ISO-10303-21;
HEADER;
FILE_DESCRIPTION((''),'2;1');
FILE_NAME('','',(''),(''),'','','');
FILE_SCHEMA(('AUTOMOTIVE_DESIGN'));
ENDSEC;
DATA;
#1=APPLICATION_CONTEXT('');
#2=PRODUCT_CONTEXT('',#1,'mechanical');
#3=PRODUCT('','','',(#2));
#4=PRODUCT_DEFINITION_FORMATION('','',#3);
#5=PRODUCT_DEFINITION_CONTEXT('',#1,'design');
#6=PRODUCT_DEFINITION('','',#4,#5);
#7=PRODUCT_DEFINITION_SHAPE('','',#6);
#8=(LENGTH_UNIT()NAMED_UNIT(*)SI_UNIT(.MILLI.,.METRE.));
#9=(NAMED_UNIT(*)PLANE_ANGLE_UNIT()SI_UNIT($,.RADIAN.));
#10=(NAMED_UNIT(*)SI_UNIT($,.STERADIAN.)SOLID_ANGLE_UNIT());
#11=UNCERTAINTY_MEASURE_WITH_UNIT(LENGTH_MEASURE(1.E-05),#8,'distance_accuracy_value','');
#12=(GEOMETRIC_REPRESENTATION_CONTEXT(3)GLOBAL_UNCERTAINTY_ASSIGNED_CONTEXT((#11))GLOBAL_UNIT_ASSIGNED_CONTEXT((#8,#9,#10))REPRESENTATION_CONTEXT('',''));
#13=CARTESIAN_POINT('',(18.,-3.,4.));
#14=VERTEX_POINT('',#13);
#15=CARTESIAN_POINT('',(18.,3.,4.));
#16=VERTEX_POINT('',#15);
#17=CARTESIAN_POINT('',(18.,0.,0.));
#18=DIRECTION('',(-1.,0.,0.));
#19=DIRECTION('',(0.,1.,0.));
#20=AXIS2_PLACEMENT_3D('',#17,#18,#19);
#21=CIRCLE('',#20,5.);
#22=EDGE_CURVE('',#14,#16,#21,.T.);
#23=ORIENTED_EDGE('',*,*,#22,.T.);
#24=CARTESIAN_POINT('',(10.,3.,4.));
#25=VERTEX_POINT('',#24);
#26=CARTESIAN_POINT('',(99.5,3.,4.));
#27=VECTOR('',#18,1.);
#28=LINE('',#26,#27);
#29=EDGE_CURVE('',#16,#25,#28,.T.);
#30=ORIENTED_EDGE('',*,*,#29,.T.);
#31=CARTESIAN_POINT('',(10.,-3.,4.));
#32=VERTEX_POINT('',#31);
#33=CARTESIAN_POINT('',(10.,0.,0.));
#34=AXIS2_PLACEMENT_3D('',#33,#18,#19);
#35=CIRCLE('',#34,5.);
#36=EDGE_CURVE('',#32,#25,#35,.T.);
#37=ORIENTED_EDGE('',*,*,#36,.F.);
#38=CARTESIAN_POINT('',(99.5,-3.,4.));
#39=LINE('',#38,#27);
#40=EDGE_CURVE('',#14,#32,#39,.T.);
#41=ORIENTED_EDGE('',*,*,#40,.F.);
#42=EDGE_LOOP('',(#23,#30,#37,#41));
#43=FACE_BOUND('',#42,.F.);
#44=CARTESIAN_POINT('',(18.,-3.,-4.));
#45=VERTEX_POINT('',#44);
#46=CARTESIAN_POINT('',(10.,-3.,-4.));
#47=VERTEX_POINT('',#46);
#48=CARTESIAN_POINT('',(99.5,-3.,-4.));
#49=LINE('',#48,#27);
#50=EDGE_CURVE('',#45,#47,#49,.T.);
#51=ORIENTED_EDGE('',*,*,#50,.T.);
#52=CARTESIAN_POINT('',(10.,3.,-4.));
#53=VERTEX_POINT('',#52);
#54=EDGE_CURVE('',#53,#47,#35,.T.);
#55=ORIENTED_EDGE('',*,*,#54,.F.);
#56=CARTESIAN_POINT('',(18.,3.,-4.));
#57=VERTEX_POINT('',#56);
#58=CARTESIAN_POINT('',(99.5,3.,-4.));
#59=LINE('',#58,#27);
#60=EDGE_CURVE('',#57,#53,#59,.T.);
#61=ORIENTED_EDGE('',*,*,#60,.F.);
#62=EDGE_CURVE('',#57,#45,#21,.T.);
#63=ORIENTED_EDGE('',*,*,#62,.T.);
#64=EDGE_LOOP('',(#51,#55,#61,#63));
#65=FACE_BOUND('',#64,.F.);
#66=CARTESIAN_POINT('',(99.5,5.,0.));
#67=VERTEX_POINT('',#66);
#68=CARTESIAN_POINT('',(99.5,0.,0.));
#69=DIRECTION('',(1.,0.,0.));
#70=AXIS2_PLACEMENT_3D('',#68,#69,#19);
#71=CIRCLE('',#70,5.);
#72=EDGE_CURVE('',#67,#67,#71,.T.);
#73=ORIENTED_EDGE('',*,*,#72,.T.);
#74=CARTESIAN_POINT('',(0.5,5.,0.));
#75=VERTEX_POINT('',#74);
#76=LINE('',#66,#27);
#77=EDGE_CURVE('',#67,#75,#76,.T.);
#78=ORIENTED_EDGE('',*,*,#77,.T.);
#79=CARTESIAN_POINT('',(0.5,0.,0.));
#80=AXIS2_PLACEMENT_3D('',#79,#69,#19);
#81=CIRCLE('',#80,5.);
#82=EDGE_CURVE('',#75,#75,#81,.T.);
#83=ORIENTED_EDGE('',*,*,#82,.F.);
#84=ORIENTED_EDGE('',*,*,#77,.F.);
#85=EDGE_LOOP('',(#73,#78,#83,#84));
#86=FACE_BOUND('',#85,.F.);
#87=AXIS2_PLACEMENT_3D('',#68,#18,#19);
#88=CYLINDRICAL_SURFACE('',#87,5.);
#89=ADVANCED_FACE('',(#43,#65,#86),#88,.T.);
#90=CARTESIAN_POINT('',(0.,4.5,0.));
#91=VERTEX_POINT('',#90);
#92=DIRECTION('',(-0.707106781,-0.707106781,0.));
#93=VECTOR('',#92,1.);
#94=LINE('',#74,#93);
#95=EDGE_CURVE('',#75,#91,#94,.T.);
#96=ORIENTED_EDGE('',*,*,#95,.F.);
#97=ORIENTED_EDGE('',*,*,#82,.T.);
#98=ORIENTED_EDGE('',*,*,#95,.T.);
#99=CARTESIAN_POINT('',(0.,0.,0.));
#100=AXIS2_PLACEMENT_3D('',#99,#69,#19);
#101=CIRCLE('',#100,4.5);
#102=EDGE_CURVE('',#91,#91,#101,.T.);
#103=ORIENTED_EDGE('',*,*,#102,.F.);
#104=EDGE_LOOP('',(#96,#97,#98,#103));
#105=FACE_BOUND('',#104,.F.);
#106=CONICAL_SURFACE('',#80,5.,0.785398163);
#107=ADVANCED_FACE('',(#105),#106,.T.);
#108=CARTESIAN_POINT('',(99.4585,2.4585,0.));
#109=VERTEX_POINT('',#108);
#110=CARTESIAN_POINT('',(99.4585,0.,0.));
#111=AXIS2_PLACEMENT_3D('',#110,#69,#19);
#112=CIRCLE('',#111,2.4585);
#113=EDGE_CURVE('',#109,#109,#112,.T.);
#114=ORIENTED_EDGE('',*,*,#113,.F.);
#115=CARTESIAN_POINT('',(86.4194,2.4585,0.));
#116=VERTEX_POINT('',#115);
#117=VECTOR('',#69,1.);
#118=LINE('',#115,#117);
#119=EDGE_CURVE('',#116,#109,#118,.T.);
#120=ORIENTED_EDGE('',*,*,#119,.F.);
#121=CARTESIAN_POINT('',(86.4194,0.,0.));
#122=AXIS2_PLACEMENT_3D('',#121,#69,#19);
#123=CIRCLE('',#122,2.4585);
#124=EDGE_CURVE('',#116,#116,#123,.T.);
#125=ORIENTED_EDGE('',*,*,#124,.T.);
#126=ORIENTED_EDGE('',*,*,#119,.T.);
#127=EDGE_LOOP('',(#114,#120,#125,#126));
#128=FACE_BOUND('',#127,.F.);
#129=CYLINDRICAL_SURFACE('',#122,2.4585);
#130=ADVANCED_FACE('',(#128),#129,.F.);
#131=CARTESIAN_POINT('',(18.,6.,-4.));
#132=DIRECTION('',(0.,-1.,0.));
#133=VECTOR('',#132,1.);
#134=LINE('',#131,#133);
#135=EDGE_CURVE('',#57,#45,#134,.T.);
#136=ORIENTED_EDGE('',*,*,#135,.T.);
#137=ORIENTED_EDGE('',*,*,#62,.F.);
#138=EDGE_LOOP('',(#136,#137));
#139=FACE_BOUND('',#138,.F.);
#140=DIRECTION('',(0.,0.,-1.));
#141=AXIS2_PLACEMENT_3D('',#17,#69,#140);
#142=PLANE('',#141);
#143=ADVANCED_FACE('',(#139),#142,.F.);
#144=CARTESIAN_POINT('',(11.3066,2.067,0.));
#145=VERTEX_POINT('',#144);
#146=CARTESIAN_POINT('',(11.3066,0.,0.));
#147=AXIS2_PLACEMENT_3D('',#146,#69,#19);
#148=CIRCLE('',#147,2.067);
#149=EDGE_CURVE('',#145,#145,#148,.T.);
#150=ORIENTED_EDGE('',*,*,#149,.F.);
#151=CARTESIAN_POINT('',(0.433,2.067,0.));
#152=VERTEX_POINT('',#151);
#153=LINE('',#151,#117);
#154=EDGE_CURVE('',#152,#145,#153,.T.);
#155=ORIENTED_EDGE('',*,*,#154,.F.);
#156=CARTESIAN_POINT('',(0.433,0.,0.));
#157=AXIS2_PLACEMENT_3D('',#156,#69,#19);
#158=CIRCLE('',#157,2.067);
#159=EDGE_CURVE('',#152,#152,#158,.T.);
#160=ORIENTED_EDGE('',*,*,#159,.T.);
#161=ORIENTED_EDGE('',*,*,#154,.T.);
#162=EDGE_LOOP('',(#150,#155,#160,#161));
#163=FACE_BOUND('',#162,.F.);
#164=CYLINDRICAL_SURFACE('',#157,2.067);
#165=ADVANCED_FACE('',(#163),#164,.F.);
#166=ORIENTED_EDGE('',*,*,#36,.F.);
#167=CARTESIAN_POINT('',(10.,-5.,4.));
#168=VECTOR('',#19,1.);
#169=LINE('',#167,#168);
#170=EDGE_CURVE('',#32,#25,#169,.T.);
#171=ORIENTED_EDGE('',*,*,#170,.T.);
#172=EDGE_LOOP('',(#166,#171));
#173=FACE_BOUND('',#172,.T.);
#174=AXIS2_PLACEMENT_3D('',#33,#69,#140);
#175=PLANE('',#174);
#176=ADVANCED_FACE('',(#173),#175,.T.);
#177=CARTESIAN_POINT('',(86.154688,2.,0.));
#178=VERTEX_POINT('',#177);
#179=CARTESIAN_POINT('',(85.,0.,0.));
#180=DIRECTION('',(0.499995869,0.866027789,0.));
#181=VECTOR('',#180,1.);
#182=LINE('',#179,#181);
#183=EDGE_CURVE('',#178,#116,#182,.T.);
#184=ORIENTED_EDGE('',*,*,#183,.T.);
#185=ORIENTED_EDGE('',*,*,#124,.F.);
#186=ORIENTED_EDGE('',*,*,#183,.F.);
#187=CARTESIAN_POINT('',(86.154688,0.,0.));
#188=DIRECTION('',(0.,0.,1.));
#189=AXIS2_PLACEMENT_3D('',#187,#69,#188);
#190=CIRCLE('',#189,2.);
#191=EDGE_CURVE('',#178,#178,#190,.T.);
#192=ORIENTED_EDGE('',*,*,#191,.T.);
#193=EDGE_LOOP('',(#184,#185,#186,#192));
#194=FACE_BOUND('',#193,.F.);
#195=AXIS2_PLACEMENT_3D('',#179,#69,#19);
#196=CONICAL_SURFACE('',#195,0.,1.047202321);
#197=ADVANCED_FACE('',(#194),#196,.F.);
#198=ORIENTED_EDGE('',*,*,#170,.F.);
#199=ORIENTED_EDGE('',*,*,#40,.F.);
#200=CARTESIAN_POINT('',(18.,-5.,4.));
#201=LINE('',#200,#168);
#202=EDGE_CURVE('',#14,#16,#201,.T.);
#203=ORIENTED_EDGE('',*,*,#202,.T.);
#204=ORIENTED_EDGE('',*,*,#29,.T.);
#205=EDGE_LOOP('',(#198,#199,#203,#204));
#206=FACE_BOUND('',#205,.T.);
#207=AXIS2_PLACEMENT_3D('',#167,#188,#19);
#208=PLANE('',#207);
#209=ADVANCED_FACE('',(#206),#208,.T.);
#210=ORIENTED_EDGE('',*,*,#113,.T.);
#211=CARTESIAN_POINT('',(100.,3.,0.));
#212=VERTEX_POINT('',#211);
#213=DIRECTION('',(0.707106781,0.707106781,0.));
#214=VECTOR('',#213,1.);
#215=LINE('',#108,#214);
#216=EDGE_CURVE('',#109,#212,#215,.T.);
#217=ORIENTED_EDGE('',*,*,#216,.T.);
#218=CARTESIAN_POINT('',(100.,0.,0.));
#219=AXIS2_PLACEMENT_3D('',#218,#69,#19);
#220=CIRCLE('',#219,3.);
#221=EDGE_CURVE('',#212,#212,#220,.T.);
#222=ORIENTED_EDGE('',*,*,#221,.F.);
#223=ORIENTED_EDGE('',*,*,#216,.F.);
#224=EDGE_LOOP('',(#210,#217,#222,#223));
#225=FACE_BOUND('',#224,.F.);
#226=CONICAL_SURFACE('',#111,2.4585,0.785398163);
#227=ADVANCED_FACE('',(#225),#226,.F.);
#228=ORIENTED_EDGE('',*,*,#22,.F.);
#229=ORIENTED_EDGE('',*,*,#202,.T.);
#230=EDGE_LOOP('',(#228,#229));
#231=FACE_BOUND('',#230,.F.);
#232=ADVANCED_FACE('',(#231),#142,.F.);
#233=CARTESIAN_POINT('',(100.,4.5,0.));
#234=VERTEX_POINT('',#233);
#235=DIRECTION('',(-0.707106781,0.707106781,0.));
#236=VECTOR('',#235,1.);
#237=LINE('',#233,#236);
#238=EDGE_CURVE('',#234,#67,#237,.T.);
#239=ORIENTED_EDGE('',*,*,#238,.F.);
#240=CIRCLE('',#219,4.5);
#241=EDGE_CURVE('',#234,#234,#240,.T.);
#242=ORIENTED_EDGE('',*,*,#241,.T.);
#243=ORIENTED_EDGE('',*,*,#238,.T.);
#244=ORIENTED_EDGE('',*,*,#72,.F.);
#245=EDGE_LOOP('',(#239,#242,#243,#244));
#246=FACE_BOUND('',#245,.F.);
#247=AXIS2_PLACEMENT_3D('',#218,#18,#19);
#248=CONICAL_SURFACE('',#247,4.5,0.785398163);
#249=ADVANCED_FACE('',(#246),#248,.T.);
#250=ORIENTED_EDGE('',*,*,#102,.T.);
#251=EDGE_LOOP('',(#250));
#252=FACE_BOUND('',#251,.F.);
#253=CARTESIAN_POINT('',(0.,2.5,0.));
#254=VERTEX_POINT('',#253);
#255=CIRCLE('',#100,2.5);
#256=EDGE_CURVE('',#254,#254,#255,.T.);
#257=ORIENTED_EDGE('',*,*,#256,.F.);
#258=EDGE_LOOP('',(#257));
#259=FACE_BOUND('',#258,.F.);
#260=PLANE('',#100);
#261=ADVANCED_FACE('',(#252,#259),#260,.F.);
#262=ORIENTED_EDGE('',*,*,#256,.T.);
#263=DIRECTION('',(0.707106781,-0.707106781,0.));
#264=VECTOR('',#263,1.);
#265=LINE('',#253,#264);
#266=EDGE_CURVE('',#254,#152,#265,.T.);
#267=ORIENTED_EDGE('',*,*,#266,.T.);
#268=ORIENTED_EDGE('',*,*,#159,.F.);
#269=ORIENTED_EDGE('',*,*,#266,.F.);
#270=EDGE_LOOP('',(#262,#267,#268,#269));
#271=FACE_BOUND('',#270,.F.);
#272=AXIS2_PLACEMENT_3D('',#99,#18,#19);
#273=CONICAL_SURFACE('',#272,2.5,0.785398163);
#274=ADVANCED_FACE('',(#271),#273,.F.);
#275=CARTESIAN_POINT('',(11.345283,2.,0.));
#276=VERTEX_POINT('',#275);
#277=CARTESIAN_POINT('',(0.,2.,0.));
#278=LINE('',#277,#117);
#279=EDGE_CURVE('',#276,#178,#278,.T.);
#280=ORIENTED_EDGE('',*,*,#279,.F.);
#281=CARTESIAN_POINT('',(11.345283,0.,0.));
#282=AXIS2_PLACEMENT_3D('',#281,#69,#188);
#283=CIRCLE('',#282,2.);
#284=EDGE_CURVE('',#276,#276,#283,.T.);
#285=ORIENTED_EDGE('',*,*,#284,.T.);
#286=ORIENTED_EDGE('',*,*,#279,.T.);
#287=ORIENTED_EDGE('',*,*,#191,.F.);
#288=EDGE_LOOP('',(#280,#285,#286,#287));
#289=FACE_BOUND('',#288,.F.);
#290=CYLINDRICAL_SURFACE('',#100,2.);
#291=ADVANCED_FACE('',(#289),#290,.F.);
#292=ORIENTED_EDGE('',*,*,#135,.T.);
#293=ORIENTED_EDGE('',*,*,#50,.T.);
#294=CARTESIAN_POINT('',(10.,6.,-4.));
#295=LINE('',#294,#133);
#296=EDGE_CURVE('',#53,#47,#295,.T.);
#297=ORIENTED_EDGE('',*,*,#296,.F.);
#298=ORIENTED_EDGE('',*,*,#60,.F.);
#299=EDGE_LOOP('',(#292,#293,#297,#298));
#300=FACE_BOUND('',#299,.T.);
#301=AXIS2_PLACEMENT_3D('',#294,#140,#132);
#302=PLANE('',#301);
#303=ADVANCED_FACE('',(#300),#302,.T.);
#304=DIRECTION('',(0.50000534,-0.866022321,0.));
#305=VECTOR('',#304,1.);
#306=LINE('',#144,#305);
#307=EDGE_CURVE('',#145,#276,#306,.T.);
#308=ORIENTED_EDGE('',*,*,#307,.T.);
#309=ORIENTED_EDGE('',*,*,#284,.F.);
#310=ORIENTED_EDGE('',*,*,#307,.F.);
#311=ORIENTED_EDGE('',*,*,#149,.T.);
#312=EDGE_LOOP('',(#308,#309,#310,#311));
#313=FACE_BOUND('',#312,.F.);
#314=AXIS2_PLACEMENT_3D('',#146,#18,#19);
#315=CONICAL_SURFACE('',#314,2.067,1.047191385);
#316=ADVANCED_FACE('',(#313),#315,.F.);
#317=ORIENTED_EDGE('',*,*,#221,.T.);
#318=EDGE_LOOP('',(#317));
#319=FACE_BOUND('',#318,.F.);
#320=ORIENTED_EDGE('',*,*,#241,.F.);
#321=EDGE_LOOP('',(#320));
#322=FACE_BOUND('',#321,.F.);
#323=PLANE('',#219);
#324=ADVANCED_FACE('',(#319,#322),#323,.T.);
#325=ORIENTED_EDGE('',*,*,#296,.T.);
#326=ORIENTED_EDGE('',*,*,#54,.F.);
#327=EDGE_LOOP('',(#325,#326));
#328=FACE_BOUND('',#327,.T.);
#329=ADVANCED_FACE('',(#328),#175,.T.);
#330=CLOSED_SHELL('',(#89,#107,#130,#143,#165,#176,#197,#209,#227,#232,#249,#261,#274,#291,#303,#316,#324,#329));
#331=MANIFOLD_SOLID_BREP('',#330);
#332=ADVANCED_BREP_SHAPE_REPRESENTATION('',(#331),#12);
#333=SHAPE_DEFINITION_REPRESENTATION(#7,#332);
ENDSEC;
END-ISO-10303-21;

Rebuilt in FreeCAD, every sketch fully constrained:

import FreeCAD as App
import Part
import Sketcher
from FreeCAD import Vector
Q = App.Units.Quantity


def add_polygon(sketch, points):
    """Adds a closed chain of lines whose ends are joined by coincident constraints."""
    first, n = sketch.GeometryCount, len(points)
    for a, b in zip(points, points[1:] + points[:1]):
        sketch.addGeometry(Part.LineSegment(App.Vector(*a, 0), App.Vector(*b, 0)), False)
    for i in range(n):
        sketch.addConstraint(Sketcher.Constraint("Coincident", first + i, 2, first + (i + 1) % n, 1))

doc = App.newDocument("Part")
body = doc.addObject("PartDesign::Body", "Body")

sketch1 = body.newObject("Sketcher::SketchObject", "Sketch")
sketch1.AttachmentSupport = (doc.getObject("XY_Plane"), [""])
sketch1.MapMode = "FlatFace"
add_polygon(sketch1, [(0.5, 5), (0, 4.5), (0, 2), (100, 2), (100, 4.5), (99.5, 5)])
sketch1.addConstraint([
    Sketcher.Constraint("Vertical", 1),
    Sketcher.Constraint("Horizontal", 2),
    Sketcher.Constraint("Vertical", 3),
    Sketcher.Constraint("Horizontal", 5),
    Sketcher.Constraint("PointOnObject", 0, 2, -2),
    Sketcher.Constraint("Perpendicular", 0, 4),
    Sketcher.Constraint("Horizontal", 0, 2, 3, 2),
    Sketcher.Constraint("Equal", 0, 4),
    Sketcher.Constraint("DistanceX", 2, 1, 2, 2, Q("100 mm")),
    Sketcher.Constraint("DistanceX", 5, 2, 5, 1, Q("99 mm")),
    Sketcher.Constraint("DistanceY", 1, 2, 1, 1, Q("2.5 mm")),
    Sketcher.Constraint("DistanceY", -1, 1, 1, 2, Q("2 mm")),
])
revolution = body.newObject("PartDesign::Revolution", "Revolution")
revolution.Profile = sketch1
revolution.ReferenceAxis = (sketch1, ["H_Axis"])
revolution.Angle = 360

sketch2 = body.newObject("Sketcher::SketchObject", "Sketch001")
sketch2.AttachmentSupport = (doc.getObject("XY_Plane"), [""])
sketch2.MapMode = "FlatFace"
add_polygon(sketch2, [(0, 0), (12.5, 0), (11.3, 2.1), (0.4, 2.1), (0, 2.5)])
sketch2.addConstraint([
    Sketcher.Constraint("Horizontal", 0),
    Sketcher.Constraint("Horizontal", 2),
    Sketcher.Constraint("Vertical", 4),
    Sketcher.Constraint("Coincident", 4, 2, -1, 1),
    Sketcher.Constraint("Angle", 1, Q("120.0004 deg")),
    Sketcher.Constraint("Angle", 3, Q("135 deg")),
    Sketcher.Constraint("DistanceX", 0, 1, 0, 2, Q("12.5 mm")),
    Sketcher.Constraint("DistanceY", 4, 2, 4, 1, Q("2.5 mm")),
    Sketcher.Constraint("DistanceX", 2, 2, 2, 1, Q("10.8736 mm")),
])
groove = body.newObject("PartDesign::Groove", "Groove")
groove.Profile = sketch2
groove.ReferenceAxis = (sketch2, ["H_Axis"])
groove.Angle = 360

sketch3 = body.newObject("Sketcher::SketchObject", "Sketch002")
sketch3.AttachmentSupport = (doc.getObject("XY_Plane"), [""])
sketch3.MapMode = "FlatFace"
add_polygon(sketch3, [(85, 0), (100, 0), (100, 3), (99.5, 2.5), (86.4, 2.5)])
sketch3.addConstraint([
    Sketcher.Constraint("Horizontal", 0),
    Sketcher.Constraint("Vertical", 1),
    Sketcher.Constraint("Horizontal", 3),
    Sketcher.Constraint("PointOnObject", 0, 2, -1),
    Sketcher.Constraint("DistanceX", 0, 1, 0, 2, Q("15 mm")),
    Sketcher.Constraint("DistanceY", 1, 1, 1, 2, Q("3 mm")),
    Sketcher.Constraint("Angle", 2, Q("-135 deg")),
    Sketcher.Constraint("Angle", 4, Q("-119.9997 deg")),
    Sketcher.Constraint("DistanceX", -1, 1, 0, 2, Q("100 mm")),
    Sketcher.Constraint("DistanceX", 3, 2, 3, 1, Q("13.039 mm")),
])
groove2 = body.newObject("PartDesign::Groove", "Groove001")
groove2.Profile = sketch3
groove2.ReferenceAxis = (sketch3, ["H_Axis"])
groove2.Angle = 360

sketch4 = body.newObject("Sketcher::SketchObject", "Sketch003")
sketch4.AttachmentSupport = (doc.getObject("YZ_Plane"), [""])
sketch4.MapMode = "FlatFace"
sketch4.AttachmentOffset = App.Placement(Vector(0, 0, 10), App.Rotation())
add_polygon(sketch4, [(7, -6), (7, 6), (-5, 6), (-5, 4), (6, 4), (6, -4), (-5, -4), (-5, -6)])
sketch4.addConstraint([
    Sketcher.Constraint("Vertical", 0),
    Sketcher.Constraint("Horizontal", 1),
    Sketcher.Constraint("Vertical", 2),
    Sketcher.Constraint("Horizontal", 3),
    Sketcher.Constraint("Vertical", 4),
    Sketcher.Constraint("Horizontal", 5),
    Sketcher.Constraint("Vertical", 6),
    Sketcher.Constraint("Horizontal", 7),
    Sketcher.Constraint("Symmetric", 2, 2, 5, 2, -1),
    Sketcher.Constraint("Equal", 7, 0),
    Sketcher.Constraint("Equal", 2, 6),
    Sketcher.Constraint("DistanceX", 1, 2, 1, 1, Q("12 mm")),
    Sketcher.Constraint("DistanceX", 3, 1, 3, 2, Q("11 mm")),
    Sketcher.Constraint("DistanceY", 2, 2, 2, 1, Q("2 mm")),
    Sketcher.Constraint("DistanceX", -1, 1, 0, 2, Q("7 mm")),
])
pocket1 = body.newObject("PartDesign::Pocket", "Pocket")
pocket1.Profile = sketch4
pocket1.Length = 8
pocket1.Reversed = True

doc.recompute()
